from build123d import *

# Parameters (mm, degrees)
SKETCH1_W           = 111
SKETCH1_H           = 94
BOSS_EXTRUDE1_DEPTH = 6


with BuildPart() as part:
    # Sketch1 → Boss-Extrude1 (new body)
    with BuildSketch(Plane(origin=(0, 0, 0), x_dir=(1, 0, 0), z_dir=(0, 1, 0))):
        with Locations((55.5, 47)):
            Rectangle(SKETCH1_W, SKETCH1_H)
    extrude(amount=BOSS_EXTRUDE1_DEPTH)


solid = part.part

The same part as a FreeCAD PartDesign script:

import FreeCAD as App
import Part
import Sketcher

V = App.Vector
Q = App.Units.Quantity


def add_polygon(sketch, points):
    """Adds a closed chain of lines whose ends are joined by coincident constraints."""
    first, n = sketch.GeometryCount, len(points)
    for a, b in zip(points, points[1:] + points[:1]):
        sketch.addGeometry(Part.LineSegment(App.Vector(*a, 0), App.Vector(*b, 0)), False)
    for i in range(n):
        sketch.addConstraint(Sketcher.Constraint("Coincident", first + i, 2, first + (i + 1) % n, 1))

doc = App.newDocument("Part")
params = doc.addObject("Spreadsheet::Sheet", "Params")
for row, (alias, value) in enumerate([
    ("sketch1_width", "111 mm"),
    ("sketch1_height", "94 mm"),
    ("pad1_length", "6 mm"),
], start=1):
    params.set(f"A{row}", alias)
    params.set(f"B{row}", "=" + value)
    params.setAlias(f"B{row}", alias)

body = doc.addObject("PartDesign::Body", "Body")

# Sketch on XZ plane
sketch1 = body.newObject("Sketcher::SketchObject", "Sketch")
sketch1.AttachmentSupport = (doc.getObject("XZ_Plane"), [""])
sketch1.MapMode = "FlatFace"
add_polygon(sketch1, [(0, -94), (0, 0), (111, 0), (111, -94)])  # lines 0-3
sketch1.addConstraint([
    Sketcher.Constraint("Vertical", 0),
    Sketcher.Constraint("Horizontal", 1),
    Sketcher.Constraint("Vertical", 2),
    Sketcher.Constraint("Horizontal", 3),
    Sketcher.Constraint("Coincident", 0, 2, -1, 1),
    Sketcher.Constraint("DistanceX", 1, 1, 1, 2, Q("111 mm")),
    Sketcher.Constraint("DistanceY", 0, 1, 0, 2, Q("94 mm")),
])
sketch1.setExpression("Constraints[9]", "Params.sketch1_width")
sketch1.setExpression("Constraints[10]", "Params.sketch1_height")
pad1 = body.newObject("PartDesign::Pad", "Pad")
pad1.Profile = sketch1
pad1.setExpression("Length", "Params.pad1_length")
pad1.Reversed = True

doc.recompute()
